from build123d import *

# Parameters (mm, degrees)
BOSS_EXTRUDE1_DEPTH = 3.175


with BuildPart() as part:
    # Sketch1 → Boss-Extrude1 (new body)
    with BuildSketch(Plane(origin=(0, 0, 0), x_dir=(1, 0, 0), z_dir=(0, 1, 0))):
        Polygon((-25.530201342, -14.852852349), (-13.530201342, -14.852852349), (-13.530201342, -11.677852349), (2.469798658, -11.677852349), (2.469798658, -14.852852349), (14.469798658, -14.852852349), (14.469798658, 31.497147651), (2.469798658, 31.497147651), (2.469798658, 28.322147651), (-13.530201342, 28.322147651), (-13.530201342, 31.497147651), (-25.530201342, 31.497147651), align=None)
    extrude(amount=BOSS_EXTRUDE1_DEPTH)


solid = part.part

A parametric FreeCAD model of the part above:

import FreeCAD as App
import Part
import Sketcher

V = App.Vector

doc = App.newDocument("Part")
body = doc.addObject("PartDesign::Body", "Body")

sketch1 = doc.addObject("Sketcher::SketchObject", "Sketch")
body.addObject(sketch1)
sketch1.AttachmentSupport = (doc.XZ_Plane, [""])
sketch1.MapMode = "FlatFace"
sketch1.addGeometry([
    Part.LineSegment(V(-25.530201, 14.852852, 0), V(-13.530201, 14.852852, 0)),
    Part.LineSegment(V(-13.530201, 14.852852, 0), V(-13.530201, 11.677852, 0)),
    Part.LineSegment(V(-13.530201, 11.677852, 0), V(2.469799, 11.677852, 0)),
    Part.LineSegment(V(2.469799, 11.677852, 0), V(2.469799, 14.852852, 0)),
    Part.LineSegment(V(2.469799, 14.852852, 0), V(14.469799, 14.852852, 0)),
    Part.LineSegment(V(14.469799, 14.852852, 0), V(14.469799, -31.497148, 0)),
    Part.LineSegment(V(14.469799, -31.497148, 0), V(2.469799, -31.497148, 0)),
    Part.LineSegment(V(2.469799, -31.497148, 0), V(2.469799, -28.322148, 0)),
    Part.LineSegment(V(2.469799, -28.322148, 0), V(-13.530201, -28.322148, 0)),
    Part.LineSegment(V(-13.530201, -28.322148, 0), V(-13.530201, -31.497148, 0)),
    Part.LineSegment(V(-13.530201, -31.497148, 0), V(-25.530201, -31.497148, 0)),
    Part.LineSegment(V(-25.530201, -31.497148, 0), V(-25.530201, 14.852852, 0)),
], False)
sketch1.addConstraint([
    Sketcher.Constraint("Coincident", 0, 2, 1, 1),
    Sketcher.Constraint("Coincident", 1, 2, 2, 1),
    Sketcher.Constraint("Coincident", 2, 2, 3, 1),
    Sketcher.Constraint("Coincident", 3, 2, 4, 1),
    Sketcher.Constraint("Coincident", 4, 2, 5, 1),
    Sketcher.Constraint("Coincident", 5, 2, 6, 1),
    Sketcher.Constraint("Coincident", 6, 2, 7, 1),
    Sketcher.Constraint("Coincident", 7, 2, 8, 1),
    Sketcher.Constraint("Coincident", 8, 2, 9, 1),
    Sketcher.Constraint("Coincident", 9, 2, 10, 1),
    Sketcher.Constraint("Coincident", 10, 2, 11, 1),
    Sketcher.Constraint("Coincident", 11, 2, 0, 1),
    Sketcher.Constraint("Horizontal", 0),
    Sketcher.Constraint("Vertical", 1),
    Sketcher.Constraint("Horizontal", 2),
    Sketcher.Constraint("Vertical", 3),
    Sketcher.Constraint("Horizontal", 4),
    Sketcher.Constraint("Vertical", 5),
    Sketcher.Constraint("Horizontal", 6),
    Sketcher.Constraint("Vertical", 7),
    Sketcher.Constraint("Horizontal", 8),
    Sketcher.Constraint("Vertical", 9),
    Sketcher.Constraint("Horizontal", 10),
    Sketcher.Constraint("Vertical", 11),
    Sketcher.Constraint("Horizontal", 0, 2, 3, 2),
    Sketcher.Constraint("Horizontal", 6, 2, 9, 2),
    Sketcher.Constraint("Vertical", 3, 2, 6, 2),
    Sketcher.Constraint("Vertical", 1, 2, 8, 2),
    Sketcher.Constraint("Equal", 0, 4),
    Sketcher.Constraint("Equal", 3, 7),
    Sketcher.Constraint("DistanceX", 0, 1, 0, 2, 12.0),
    Sketcher.Constraint("DistanceX", 2, 1, 2, 2, 16.0),
    Sketcher.Constraint("DistanceY", 7, 2, 2, 2, 40.0),
    Sketcher.Constraint("DistanceY", 5, 2, 5, 1, 46.35),
    Sketcher.Constraint("DistanceX", 0, 2, -1, 1, 13.530201),
    Sketcher.Constraint("DistanceY", -1, 1, 0, 2, 14.852852),
])
pad1 = doc.addObject("PartDesign::Pad", "Pad")
body.addObject(pad1)
pad1.Profile = sketch1
pad1.Length = 3.175
pad1.Reversed = True

doc.recompute()
